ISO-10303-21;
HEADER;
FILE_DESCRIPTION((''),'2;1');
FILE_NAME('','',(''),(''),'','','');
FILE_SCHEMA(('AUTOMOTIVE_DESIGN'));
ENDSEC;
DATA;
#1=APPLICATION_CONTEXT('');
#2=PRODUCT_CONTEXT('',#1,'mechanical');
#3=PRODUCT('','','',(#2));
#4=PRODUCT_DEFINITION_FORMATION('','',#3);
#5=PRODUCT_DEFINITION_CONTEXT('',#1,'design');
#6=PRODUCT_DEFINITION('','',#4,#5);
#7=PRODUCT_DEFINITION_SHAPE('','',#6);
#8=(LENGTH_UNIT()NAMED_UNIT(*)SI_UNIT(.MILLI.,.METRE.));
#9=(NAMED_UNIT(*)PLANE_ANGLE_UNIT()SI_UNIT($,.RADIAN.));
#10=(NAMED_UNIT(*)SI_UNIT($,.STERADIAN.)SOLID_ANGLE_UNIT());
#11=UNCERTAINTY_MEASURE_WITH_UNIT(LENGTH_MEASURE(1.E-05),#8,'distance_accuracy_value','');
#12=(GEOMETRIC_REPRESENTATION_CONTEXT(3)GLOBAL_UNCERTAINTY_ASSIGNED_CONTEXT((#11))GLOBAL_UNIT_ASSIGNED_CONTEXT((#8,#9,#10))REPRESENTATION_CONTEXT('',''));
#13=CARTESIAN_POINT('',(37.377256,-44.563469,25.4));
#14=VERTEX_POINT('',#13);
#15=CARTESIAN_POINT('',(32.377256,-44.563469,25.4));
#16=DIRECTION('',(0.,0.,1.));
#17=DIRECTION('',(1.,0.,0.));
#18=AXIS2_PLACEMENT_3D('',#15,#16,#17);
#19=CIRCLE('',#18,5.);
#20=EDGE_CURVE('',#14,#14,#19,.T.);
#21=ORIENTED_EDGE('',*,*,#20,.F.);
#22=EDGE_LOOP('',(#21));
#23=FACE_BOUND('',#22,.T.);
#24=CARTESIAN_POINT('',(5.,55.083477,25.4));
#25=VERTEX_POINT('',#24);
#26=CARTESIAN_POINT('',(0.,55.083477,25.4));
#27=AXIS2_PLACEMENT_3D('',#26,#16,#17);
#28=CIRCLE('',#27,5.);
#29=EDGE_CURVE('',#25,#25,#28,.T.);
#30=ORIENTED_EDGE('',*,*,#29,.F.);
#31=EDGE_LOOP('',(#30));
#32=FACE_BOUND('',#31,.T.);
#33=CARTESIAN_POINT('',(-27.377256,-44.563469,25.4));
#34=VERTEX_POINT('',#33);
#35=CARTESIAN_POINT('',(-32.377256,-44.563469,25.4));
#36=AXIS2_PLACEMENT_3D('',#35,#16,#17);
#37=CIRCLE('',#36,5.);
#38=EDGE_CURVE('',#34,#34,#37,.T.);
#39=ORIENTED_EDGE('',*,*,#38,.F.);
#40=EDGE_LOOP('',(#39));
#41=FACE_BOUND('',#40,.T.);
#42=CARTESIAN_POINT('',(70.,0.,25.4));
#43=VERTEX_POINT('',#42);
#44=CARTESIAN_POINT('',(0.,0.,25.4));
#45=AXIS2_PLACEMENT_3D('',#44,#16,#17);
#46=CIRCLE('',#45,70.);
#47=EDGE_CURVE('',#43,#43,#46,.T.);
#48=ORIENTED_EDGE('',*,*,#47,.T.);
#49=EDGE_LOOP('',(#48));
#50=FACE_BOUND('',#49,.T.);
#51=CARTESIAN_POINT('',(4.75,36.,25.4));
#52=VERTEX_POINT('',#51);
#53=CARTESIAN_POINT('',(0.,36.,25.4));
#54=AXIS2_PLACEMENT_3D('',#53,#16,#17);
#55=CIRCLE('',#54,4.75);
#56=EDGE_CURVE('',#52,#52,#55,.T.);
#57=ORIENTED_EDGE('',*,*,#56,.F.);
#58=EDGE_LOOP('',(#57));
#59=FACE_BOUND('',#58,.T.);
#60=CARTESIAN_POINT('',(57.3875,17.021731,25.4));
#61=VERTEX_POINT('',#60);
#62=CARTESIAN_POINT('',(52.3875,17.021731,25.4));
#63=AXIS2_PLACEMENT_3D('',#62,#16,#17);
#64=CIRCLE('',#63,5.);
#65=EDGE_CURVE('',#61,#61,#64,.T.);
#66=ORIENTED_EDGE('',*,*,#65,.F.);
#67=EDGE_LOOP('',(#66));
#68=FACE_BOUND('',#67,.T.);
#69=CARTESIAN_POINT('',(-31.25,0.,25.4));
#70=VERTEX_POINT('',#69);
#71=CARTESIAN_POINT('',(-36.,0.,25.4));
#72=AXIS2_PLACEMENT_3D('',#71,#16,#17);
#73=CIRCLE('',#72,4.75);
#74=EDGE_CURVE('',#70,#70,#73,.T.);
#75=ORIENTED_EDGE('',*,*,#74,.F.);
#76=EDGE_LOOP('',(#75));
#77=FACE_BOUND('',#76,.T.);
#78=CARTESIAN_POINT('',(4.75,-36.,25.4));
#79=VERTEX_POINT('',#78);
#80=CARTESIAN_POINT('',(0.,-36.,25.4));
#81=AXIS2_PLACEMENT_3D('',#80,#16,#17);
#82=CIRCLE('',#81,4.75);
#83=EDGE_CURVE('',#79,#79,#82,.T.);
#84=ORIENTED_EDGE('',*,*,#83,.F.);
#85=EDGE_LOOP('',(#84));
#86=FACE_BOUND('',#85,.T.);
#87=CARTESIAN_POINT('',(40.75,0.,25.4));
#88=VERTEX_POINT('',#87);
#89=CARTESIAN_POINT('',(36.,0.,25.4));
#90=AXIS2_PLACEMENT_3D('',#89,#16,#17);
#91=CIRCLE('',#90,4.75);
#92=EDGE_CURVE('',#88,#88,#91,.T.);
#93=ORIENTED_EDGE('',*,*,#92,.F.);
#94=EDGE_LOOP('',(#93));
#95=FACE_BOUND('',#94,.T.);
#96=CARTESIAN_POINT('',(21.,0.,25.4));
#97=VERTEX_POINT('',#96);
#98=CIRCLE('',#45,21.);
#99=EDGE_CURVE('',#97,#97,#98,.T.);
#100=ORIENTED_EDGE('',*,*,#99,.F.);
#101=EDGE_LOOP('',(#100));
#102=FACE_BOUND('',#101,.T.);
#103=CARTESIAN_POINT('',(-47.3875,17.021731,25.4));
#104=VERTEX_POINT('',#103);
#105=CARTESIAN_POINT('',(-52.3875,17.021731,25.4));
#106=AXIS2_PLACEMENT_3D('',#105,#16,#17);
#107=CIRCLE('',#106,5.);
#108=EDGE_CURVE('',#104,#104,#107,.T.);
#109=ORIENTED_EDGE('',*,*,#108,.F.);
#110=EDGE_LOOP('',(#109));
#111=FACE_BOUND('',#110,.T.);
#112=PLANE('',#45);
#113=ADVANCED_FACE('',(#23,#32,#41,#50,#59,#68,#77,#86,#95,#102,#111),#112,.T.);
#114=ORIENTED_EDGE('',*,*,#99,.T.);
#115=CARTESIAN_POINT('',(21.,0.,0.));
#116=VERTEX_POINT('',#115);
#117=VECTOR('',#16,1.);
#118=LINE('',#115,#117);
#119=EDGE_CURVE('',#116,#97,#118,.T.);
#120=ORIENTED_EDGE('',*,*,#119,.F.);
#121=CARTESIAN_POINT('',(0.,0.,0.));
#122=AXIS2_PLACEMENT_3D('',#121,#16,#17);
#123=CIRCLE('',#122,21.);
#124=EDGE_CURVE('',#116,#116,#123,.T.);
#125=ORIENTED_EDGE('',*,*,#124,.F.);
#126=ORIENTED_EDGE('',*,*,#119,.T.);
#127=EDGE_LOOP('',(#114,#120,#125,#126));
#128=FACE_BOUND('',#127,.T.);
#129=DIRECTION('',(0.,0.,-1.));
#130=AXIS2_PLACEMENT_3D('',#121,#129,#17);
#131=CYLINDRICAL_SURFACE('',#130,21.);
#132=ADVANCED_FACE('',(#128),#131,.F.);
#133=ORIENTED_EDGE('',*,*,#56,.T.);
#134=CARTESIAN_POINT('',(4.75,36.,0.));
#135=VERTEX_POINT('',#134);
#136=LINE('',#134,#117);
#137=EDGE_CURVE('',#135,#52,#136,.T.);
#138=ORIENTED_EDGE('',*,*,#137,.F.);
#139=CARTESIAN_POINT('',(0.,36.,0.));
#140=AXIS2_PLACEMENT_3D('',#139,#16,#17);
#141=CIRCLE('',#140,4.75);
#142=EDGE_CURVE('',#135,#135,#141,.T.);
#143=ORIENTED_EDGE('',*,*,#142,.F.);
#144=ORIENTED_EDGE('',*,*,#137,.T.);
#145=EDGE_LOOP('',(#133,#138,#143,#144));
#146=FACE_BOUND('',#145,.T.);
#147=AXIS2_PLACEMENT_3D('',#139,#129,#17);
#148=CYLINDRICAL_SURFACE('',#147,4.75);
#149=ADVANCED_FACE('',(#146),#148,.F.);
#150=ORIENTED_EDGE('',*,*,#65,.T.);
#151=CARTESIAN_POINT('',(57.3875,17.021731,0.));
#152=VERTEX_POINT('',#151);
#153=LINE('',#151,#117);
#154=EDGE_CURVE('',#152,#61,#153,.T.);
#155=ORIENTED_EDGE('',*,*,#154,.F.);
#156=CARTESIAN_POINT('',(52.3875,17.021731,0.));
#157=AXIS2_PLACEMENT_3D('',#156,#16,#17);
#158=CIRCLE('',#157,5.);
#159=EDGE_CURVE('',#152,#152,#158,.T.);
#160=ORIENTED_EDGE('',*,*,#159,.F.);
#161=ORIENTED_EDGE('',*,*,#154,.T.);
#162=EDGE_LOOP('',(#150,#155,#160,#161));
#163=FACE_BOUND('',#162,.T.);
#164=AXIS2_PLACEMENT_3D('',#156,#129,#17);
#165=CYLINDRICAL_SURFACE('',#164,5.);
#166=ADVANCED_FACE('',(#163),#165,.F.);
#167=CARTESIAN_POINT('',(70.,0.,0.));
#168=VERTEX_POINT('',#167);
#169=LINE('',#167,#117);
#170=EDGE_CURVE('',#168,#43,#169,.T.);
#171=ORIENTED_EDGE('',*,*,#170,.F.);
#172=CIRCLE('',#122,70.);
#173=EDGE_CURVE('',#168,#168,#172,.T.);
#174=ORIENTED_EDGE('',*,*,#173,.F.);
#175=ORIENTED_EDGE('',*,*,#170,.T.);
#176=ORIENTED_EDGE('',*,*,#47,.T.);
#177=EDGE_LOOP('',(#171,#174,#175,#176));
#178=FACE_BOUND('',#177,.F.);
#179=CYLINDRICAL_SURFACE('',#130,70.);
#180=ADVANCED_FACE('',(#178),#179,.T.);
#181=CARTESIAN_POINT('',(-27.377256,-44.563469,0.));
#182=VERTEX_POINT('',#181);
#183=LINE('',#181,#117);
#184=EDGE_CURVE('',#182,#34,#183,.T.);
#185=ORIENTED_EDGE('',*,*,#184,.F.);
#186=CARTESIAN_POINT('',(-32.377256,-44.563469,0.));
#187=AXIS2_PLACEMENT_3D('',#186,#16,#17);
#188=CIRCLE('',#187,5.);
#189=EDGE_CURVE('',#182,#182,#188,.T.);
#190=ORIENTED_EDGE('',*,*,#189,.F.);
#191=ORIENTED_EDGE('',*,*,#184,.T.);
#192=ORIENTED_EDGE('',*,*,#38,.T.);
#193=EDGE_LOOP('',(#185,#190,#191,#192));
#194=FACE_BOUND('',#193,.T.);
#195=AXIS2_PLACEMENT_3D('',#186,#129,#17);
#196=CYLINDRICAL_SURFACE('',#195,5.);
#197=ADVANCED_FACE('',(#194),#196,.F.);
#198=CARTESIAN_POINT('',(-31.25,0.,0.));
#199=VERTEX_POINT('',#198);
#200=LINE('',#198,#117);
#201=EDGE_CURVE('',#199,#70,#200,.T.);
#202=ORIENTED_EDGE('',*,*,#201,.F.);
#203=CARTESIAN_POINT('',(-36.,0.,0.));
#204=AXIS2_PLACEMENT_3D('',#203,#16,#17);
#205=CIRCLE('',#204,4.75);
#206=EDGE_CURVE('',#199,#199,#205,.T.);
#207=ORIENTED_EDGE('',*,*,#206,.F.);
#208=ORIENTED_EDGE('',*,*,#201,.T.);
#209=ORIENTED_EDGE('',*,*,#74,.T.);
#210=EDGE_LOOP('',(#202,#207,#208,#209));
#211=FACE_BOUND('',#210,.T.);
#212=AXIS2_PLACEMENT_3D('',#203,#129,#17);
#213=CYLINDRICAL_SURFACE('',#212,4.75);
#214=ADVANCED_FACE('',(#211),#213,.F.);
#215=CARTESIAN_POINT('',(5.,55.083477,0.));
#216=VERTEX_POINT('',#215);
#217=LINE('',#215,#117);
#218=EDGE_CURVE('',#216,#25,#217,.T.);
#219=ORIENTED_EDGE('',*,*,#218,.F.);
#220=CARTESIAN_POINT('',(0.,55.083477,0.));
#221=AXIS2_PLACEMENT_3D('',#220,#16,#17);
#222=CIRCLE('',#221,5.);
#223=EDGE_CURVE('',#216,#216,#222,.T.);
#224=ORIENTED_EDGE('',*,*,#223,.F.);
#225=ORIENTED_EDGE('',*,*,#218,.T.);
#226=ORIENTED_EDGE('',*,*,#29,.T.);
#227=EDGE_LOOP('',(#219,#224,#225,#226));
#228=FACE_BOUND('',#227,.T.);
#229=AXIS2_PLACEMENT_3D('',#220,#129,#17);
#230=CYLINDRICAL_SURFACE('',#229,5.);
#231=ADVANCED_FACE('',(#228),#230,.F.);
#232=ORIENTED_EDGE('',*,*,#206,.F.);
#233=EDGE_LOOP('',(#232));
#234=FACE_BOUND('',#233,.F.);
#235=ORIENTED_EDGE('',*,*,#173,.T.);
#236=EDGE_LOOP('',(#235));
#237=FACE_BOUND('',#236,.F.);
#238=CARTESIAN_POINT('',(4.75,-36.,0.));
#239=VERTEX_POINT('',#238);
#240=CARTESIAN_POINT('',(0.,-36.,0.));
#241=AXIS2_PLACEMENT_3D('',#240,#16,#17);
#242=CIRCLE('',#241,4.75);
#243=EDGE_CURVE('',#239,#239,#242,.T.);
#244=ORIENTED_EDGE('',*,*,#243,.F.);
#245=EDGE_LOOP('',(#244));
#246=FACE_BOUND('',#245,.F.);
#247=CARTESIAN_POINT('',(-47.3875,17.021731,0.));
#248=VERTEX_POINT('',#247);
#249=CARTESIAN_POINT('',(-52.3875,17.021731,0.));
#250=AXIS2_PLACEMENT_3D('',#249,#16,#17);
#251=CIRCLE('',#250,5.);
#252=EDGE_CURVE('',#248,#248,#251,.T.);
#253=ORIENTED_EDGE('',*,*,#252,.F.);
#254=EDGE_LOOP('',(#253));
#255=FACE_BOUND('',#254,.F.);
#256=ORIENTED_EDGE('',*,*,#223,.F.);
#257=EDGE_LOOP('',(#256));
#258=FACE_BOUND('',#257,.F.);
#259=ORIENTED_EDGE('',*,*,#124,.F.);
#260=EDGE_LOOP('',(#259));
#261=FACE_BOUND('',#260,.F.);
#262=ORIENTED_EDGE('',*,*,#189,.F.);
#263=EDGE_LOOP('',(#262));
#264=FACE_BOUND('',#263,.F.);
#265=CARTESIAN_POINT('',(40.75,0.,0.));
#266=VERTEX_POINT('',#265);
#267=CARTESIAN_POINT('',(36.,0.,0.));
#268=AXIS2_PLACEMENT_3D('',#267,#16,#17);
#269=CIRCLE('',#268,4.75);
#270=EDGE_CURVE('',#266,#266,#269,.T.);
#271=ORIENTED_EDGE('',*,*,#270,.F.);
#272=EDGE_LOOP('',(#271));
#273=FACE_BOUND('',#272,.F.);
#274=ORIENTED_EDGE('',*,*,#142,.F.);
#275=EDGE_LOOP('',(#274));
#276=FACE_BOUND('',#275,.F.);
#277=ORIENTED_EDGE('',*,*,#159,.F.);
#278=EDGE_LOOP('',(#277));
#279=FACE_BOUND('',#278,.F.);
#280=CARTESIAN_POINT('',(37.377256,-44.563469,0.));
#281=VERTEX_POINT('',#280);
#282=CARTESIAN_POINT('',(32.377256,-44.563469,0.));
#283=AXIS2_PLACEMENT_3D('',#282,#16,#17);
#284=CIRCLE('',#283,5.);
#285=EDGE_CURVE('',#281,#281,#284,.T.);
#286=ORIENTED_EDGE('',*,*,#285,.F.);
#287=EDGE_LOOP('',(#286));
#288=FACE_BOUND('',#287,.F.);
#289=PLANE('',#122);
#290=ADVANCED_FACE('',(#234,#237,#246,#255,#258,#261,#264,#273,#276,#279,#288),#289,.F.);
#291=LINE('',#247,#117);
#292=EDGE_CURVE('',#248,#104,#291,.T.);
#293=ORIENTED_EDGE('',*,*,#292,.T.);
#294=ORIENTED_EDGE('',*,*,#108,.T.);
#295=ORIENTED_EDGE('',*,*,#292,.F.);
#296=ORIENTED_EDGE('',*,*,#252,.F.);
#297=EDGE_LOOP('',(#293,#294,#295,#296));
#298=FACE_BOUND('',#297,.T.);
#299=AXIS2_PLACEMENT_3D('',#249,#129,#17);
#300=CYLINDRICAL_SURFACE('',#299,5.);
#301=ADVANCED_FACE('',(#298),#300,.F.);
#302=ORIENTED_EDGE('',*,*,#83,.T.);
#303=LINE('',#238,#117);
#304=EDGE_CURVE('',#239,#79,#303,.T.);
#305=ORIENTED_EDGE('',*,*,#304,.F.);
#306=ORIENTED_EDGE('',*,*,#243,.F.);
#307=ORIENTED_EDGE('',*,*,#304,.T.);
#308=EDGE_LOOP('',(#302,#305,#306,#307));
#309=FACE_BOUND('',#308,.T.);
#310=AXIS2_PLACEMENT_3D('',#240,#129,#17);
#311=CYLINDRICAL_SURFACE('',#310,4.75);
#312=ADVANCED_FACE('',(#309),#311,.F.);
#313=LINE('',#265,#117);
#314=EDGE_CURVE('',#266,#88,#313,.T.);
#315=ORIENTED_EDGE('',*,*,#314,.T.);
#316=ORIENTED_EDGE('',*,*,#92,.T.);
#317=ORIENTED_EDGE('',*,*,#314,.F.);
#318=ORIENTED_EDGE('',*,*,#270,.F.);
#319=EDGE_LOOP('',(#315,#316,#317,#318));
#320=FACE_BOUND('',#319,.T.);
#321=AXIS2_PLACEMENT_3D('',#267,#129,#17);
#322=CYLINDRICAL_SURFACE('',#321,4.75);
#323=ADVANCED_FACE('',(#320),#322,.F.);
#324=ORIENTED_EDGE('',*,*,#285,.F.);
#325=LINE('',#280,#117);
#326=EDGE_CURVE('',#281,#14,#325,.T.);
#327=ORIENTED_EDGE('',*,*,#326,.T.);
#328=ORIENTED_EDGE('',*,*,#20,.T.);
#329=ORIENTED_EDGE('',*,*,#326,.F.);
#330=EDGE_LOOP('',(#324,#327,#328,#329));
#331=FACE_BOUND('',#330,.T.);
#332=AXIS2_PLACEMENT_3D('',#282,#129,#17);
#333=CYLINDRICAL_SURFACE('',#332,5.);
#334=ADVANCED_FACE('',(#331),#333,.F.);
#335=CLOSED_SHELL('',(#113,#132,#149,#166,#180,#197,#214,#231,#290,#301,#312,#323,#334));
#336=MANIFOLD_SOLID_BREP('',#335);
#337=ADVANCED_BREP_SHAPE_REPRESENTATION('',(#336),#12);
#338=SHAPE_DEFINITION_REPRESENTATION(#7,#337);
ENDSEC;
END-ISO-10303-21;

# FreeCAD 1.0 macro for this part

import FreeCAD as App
import Part
import Sketcher
from FreeCAD import Vector

doc = App.newDocument("Part")
body = doc.addObject("PartDesign::Body", "Body")

# Sketch on XY plane
sketch1 = body.newObject("Sketcher::SketchObject", "Sketch")
sketch1.AttachmentSupport = (doc.getObject("XY_Plane"), [""])
sketch1.MapMode = "FlatFace"
sketch1.addGeometry(Part.Circle(Vector(0, 0, 0), Vector(0, 0, 1), 70), False)
sketch1.addGeometry(Part.Circle(Vector(-32.4, -44.6, 0), Vector(0, 0, 1), 5), False)
sketch1.addGeometry(Part.Circle(Vector(-36, 0, 0), Vector(0, 0, 1), 4.8), False)
sketch1.addGeometry(Part.Circle(Vector(0, -36, 0), Vector(0, 0, 1), 4.8), False)
sketch1.addGeometry(Part.Circle(Vector(32.4, -44.6, 0), Vector(0, 0, 1), 5), False)
sketch1.addGeometry(Part.Circle(Vector(0, 0, 0), Vector(0, 0, 1), 21), False)
sketch1.addGeometry(Part.Circle(Vector(36, 0, 0), Vector(0, 0, 1), 4.8), False)
sketch1.addGeometry(Part.Circle(Vector(-52.4, 17, 0), Vector(0, 0, 1), 5), False)
sketch1.addGeometry(Part.Circle(Vector(52.4, 17, 0), Vector(0, 0, 1), 5), False)
sketch1.addGeometry(Part.Circle(Vector(0, 36, 0), Vector(0, 0, 1), 4.8), False)
sketch1.addGeometry(Part.Circle(Vector(0, 55.1, 0), Vector(0, 0, 1), 5), False)
sketch1.addConstraint(Sketcher.Constraint("Coincident", 0, 3, -1, 1))
sketch1.addConstraint(Sketcher.Constraint("Coincident", 5, 3, -1, 1))
sketch1.addConstraint(Sketcher.Constraint("Equal", 2, 3))
sketch1.addConstraint(Sketcher.Constraint("Equal", 1, 4))
sketch1.addConstraint(Sketcher.Constraint("Equal", 3, 6))
sketch1.addConstraint(Sketcher.Constraint("Equal", 4, 7))
sketch1.addConstraint(Sketcher.Constraint("Equal", 7, 8))
sketch1.addConstraint(Sketcher.Constraint("Equal", 6, 9))
sketch1.addConstraint(Sketcher.Constraint("Equal", 8, 10))
sketch1.addConstraint(Sketcher.Constraint("Symmetric", 2, 3, 6, 3, -1, 1))
sketch1.addConstraint(Sketcher.Constraint("Symmetric", 3, 3, 9, 3, -1, 1))
sketch1.addConstraint(Sketcher.Constraint("Symmetric", 1, 3, 4, 3, -2))
sketch1.addConstraint(Sketcher.Constraint("Symmetric", 7, 3, 8, 3, -2))
sketch1.addConstraint(Sketcher.Constraint("PointOnObject", 2, 3, -1))
sketch1.addConstraint(Sketcher.Constraint("PointOnObject", 3, 3, -2))
sketch1.addConstraint(Sketcher.Constraint("PointOnObject", 10, 3, -2))
sketch1.addConstraint(Sketcher.Constraint("Diameter", 0, 140.0))
sketch1.addConstraint(Sketcher.Constraint("Diameter", 1, 10.0))
sketch1.addConstraint(Sketcher.Constraint("Diameter", 5, 42.0))
sketch1.addConstraint(Sketcher.Constraint("Diameter", 2, 9.5))
sketch1.addConstraint(Sketcher.Constraint("DistanceX", 2, 3, -1, 1, 36.0))
sketch1.addConstraint(Sketcher.Constraint("DistanceY", 3, 3, -1, 1, 36.0))
sketch1.addConstraint(Sketcher.Constraint("DistanceX", 7, 3, -1, 1, 52.3875))
sketch1.addConstraint(Sketcher.Constraint("DistanceY", 1, 3, 7, 3, 61.5852))
sketch1.addConstraint(Sketcher.Constraint("DistanceY", 1, 3, -1, 1, 44.563469))
sketch1.addConstraint(Sketcher.Constraint("DistanceX", 1, 3, -1, 1, 32.377256))
sketch1.addConstraint(Sketcher.Constraint("DistanceY", -1, 1, 10, 3, 55.083477))
pad1 = body.newObject("PartDesign::Pad", "Pad")
pad1.Profile = sketch1
pad1.Length = 25.4

doc.recompute()
